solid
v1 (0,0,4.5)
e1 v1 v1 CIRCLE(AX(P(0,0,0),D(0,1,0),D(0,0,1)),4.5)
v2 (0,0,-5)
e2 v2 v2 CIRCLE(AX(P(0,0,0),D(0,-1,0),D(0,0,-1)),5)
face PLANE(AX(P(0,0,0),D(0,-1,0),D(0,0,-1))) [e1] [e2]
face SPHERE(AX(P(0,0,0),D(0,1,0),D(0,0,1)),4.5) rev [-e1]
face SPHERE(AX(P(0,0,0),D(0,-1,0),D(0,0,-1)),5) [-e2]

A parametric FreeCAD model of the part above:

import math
import FreeCAD as App
import Part
import Sketcher
from FreeCAD import Vector
Q = App.Units.Quantity

doc = App.newDocument("Part")
body = doc.addObject("PartDesign::Body", "Body")

# Sketch on XZ plane
sketch1 = body.newObject("Sketcher::SketchObject", "Sketch")
sketch1.AttachmentSupport = (doc.getObject("XZ_Plane"), [""])
sketch1.MapMode = "FlatFace"
sketch1.addGeometry(Part.LineSegment(Vector(-5, 0, 0), Vector(5, 0, 0)), False)
sketch1.addGeometry(Part.ArcOfCircle(Part.Circle(Vector(0, 0, 0), Vector(0, 0, 1), 5), math.radians(180), math.radians(360)), False)
sketch1.addConstraint(Sketcher.Constraint("Coincident", 0, 1, 1, 1))
sketch1.addConstraint(Sketcher.Constraint("Coincident", 1, 2, 0, 2))
sketch1.addConstraint(Sketcher.Constraint("Horizontal", 0))
sketch1.addConstraint(Sketcher.Constraint("Coincident", 1, 3, -1, 1))
sketch1.addConstraint(Sketcher.Constraint("PointOnObject", 0, 1, -1))
sketch1.addConstraint(Sketcher.Constraint("Radius", 1, Q("5 mm")))
revolution = body.newObject("PartDesign::Revolution", "Revolution")
revolution.Profile = sketch1
revolution.ReferenceAxis = (sketch1, ["H_Axis"])
revolution.Angle = 180

# Sketch on XZ plane
sketch2 = body.newObject("Sketcher::SketchObject", "Sketch001")
sketch2.AttachmentSupport = (doc.getObject("XZ_Plane"), [""])
sketch2.MapMode = "FlatFace"
sketch2.addGeometry(Part.LineSegment(Vector(-4.5, 0, 0), Vector(4.5, 0, 0)), False)
sketch2.addGeometry(Part.ArcOfCircle(Part.Circle(Vector(0, 0, 0), Vector(0, 0, 1), 4.5), math.radians(0), math.radians(180)), False)
sketch2.addConstraint(Sketcher.Constraint("Coincident", 0, 1, 1, 2))
sketch2.addConstraint(Sketcher.Constraint("Coincident", 1, 1, 0, 2))
sketch2.addConstraint(Sketcher.Constraint("Horizontal", 0))
sketch2.addConstraint(Sketcher.Constraint("Coincident", 1, 3, -1, 1))
sketch2.addConstraint(Sketcher.Constraint("PointOnObject", 0, 1, -1))
sketch2.addConstraint(Sketcher.Constraint("Radius", 1, Q("4.5 mm")))
groove = body.newObject("PartDesign::Groove", "Groove")
groove.Profile = sketch2
groove.ReferenceAxis = (sketch2, ["H_Axis"])
groove.Angle = 180
groove.Reversed = True

doc.recompute()
